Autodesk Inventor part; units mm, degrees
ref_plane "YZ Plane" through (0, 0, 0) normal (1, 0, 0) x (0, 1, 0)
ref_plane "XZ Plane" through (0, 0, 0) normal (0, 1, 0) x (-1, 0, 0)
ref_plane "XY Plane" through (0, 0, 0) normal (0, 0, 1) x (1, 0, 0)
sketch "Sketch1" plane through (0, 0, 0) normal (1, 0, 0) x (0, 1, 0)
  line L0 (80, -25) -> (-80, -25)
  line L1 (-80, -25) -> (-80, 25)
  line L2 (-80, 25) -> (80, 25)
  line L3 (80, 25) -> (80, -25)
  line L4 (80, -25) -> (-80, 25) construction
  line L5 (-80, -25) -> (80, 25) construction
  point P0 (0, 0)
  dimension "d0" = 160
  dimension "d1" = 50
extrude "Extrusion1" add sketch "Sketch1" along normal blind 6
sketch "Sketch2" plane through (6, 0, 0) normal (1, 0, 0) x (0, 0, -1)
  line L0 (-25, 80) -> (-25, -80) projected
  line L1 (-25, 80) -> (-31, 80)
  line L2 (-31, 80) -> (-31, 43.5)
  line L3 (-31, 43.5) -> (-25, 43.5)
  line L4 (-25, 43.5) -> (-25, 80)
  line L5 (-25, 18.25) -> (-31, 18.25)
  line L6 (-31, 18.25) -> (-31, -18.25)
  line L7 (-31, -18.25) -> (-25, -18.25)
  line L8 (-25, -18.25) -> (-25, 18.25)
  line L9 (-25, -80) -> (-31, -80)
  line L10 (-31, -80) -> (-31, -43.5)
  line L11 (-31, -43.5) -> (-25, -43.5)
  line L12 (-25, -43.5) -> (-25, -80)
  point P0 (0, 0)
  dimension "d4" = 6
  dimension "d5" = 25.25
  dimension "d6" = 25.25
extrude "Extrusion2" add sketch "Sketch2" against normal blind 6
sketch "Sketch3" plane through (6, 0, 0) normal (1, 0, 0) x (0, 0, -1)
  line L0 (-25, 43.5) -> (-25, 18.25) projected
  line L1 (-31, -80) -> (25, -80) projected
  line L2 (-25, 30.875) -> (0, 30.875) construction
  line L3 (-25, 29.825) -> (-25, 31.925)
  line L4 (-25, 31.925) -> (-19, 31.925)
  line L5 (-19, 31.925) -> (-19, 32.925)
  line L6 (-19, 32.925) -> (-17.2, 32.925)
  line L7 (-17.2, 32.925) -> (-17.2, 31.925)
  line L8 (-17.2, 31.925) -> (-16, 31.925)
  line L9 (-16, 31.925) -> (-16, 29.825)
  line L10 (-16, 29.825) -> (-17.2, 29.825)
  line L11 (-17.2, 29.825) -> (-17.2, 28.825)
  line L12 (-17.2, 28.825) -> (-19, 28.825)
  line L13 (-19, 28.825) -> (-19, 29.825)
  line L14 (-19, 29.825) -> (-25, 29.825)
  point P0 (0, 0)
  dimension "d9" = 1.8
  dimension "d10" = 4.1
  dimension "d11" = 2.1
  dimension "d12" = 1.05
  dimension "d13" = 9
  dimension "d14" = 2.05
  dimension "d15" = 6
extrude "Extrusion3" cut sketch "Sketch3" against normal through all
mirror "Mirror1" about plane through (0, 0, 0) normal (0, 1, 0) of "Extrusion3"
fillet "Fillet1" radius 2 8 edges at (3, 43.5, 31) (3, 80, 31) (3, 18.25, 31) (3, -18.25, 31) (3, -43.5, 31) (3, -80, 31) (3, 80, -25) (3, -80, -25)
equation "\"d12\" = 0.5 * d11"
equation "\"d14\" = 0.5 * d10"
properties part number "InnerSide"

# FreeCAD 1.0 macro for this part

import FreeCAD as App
import Part
import Sketcher
Q = App.Units.Quantity


def edges_at(feature, points):
    """Names of the edges that pass closest to the given points."""
    edges = feature.Shape.Edges
    near = lambda p: min(range(len(edges)), key=lambda i: edges[i].distToShape(Part.Vertex(*p))[0])
    return sorted({f"Edge{near(p) + 1}" for p in points})


def add_polygon(sketch, points):
    """Adds a closed chain of lines whose ends are joined by coincident constraints."""
    first, n = sketch.GeometryCount, len(points)
    for a, b in zip(points, points[1:] + points[:1]):
        sketch.addGeometry(Part.LineSegment(App.Vector(*a, 0), App.Vector(*b, 0)), False)
    for i in range(n):
        sketch.addConstraint(Sketcher.Constraint("Coincident", first + i, 2, first + (i + 1) % n, 1))

doc = App.newDocument("Part")
params = doc.addObject("Spreadsheet::Sheet", "Params")
for row, (alias, value) in enumerate([
    ("sketch1_width", "160 mm"),
    ("sketch1_height", "50 mm"),
    ("pad1_length", "6 mm"),
    ("sketch2_height", "6 mm"),
    ("sketch2_width", "36.5 mm"),
    ("pad2_length", "6 mm"),
    ("sketch3_height", "6 mm"),
    ("sketch3_width", "2.1 mm"),
    ("sketch3_height2", "1.8 mm"),
    ("sketch3_width2", "1 mm"),
    ("fillet_radius", "2 mm"),
], start=1):
    params.set(f"A{row}", alias)
    params.set(f"B{row}", "=" + value)
    params.setAlias(f"B{row}", alias)

body = doc.addObject("PartDesign::Body", "Body")

sketch1 = doc.addObject("Sketcher::SketchObject", "Sketch")
body.addObject(sketch1)
sketch1.AttachmentSupport = (doc.YZ_Plane, [""])
sketch1.MapMode = "FlatFace"
add_polygon(sketch1, [(-80, -25), (80, -25), (80, 25), (-80, 25)])
sketch1.addConstraint([
    Sketcher.Constraint("Horizontal", 0),
    Sketcher.Constraint("Vertical", 1),
    Sketcher.Constraint("Horizontal", 2),
    Sketcher.Constraint("Vertical", 3),
    Sketcher.Constraint("Symmetric", 0, 2, 2, 2, -1, 1),
    Sketcher.Constraint("DistanceX", 0, 1, 0, 2, Q("160 mm")),
    Sketcher.Constraint("DistanceY", 1, 1, 1, 2, Q("50 mm")),
])
sketch1.setExpression("Constraints[9]", "Params.sketch1_width")
sketch1.setExpression("Constraints[10]", "Params.sketch1_height")
pad1 = doc.addObject("PartDesign::Pad", "Pad")
body.addObject(pad1)
pad1.Profile = sketch1
pad1.setExpression("Length", "Params.pad1_length")

sketch2 = doc.addObject("Sketcher::SketchObject", "Sketch001")
body.addObject(sketch2)
sketch2.AttachmentSupport = (doc.YZ_Plane, [""])
sketch2.MapMode = "FlatFace"
sketch2.AttachmentOffset = App.Placement(App.Vector(0, 0, 6), App.Rotation())
add_polygon(sketch2, [(-80, 25), (-44, 25), (-44, 31), (-80, 31)])
add_polygon(sketch2, [(-18, 25), (18, 25), (18, 31), (-18, 31)])
add_polygon(sketch2, [(44, 25), (80, 25), (80, 31), (44, 31)])
sketch2.addConstraint([
    Sketcher.Constraint("Horizontal", 0),
    Sketcher.Constraint("Vertical", 1),
    Sketcher.Constraint("Horizontal", 2),
    Sketcher.Constraint("Vertical", 3),
    Sketcher.Constraint("Horizontal", 4),
    Sketcher.Constraint("Vertical", 5),
    Sketcher.Constraint("Horizontal", 6),
    Sketcher.Constraint("Vertical", 7),
    Sketcher.Constraint("Horizontal", 8),
    Sketcher.Constraint("Vertical", 9),
    Sketcher.Constraint("Horizontal", 10),
    Sketcher.Constraint("Vertical", 11),
    Sketcher.Constraint("Symmetric", 3, 2, 8, 2, -2),
    Sketcher.Constraint("Symmetric", 1, 2, 10, 2, -2),
    Sketcher.Constraint("Horizontal", 3, 2, 4, 2),
    Sketcher.Constraint("Horizontal", 2, 2, 5, 2),
    Sketcher.Constraint("Equal", 2, 4),
    Sketcher.Constraint("DistanceY", 1, 1, 1, 2, Q("6 mm")),
    Sketcher.Constraint("DistanceX", 1, 2, 6, 2, Q("25.25 mm")),
    Sketcher.Constraint("DistanceX", 5, 2, 10, 2, Q("25.25 mm")),
    Sketcher.Constraint("DistanceX", 0, 1, 0, 2, Q("36.5 mm")),
    Sketcher.Constraint("DistanceY", -1, 1, 0, 2, Q("25 mm")),
])
sketch2.setExpression("Constraints[29]", "Params.sketch2_height")
sketch2.setExpression("Constraints[32]", "Params.sketch2_width")
pad2 = doc.addObject("PartDesign::Pad", "Pad001")
body.addObject(pad2)
pad2.Profile = sketch2
pad2.setExpression("Length", "Params.pad2_length")
pad2.Reversed = True

sketch3 = doc.addObject("Sketcher::SketchObject", "Sketch002")
body.addObject(sketch3)
sketch3.AttachmentSupport = (doc.YZ_Plane, [""])
sketch3.MapMode = "FlatFace"
sketch3.AttachmentOffset = App.Placement(App.Vector(0, 0, 6), App.Rotation())
add_polygon(sketch3, [(31.9, 19), (31.9, 25), (29.8, 25), (29.8, 19), (28.8, 19), (28.8, 17.2), (29.8, 17.2), (29.8, 16), (31.9, 16), (31.9, 17.2), (32.9, 17.2), (32.9, 19)])
sketch3.addConstraint([
    Sketcher.Constraint("Vertical", 0),
    Sketcher.Constraint("Horizontal", 1),
    Sketcher.Constraint("Vertical", 2),
    Sketcher.Constraint("Horizontal", 3),
    Sketcher.Constraint("Vertical", 4),
    Sketcher.Constraint("Horizontal", 5),
    Sketcher.Constraint("Vertical", 6),
    Sketcher.Constraint("Horizontal", 7),
    Sketcher.Constraint("Vertical", 8),
    Sketcher.Constraint("Horizontal", 9),
    Sketcher.Constraint("Vertical", 10),
    Sketcher.Constraint("Horizontal", 11),
    Sketcher.Constraint("Horizontal", 5, 2, 8, 2),
    Sketcher.Constraint("Horizontal", 3, 2, 10, 2),
    Sketcher.Constraint("Vertical", 2, 2, 5, 2),
    Sketcher.Constraint("Vertical", 0, 2, 7, 2),
    Sketcher.Constraint("Equal", 5, 9),
    Sketcher.Constraint("DistanceY", 0, 1, 0, 2, Q("6 mm")),
    Sketcher.Constraint("DistanceX", 1, 2, 1, 1, Q("2.1 mm")),
    Sketcher.Constraint("DistanceY", 4, 2, 4, 1, Q("1.8 mm")),
    Sketcher.Constraint("DistanceY", 6, 2, 1, 2, Q("9 mm")),
    Sketcher.Constraint("DistanceX", 3, 2, 3, 1, Q("1 mm")),
    Sketcher.Constraint("DistanceY", -1, 1, 0, 2, Q("25 mm")),
    Sketcher.Constraint("DistanceX", -1, 1, 0, 2, Q("31.925 mm")),
])
sketch3.setExpression("Constraints[29]", "Params.sketch3_height")
sketch3.setExpression("Constraints[30]", "Params.sketch3_width")
sketch3.setExpression("Constraints[31]", "Params.sketch3_height2")
sketch3.setExpression("Constraints[33]", "Params.sketch3_width2")
pocket1 = doc.addObject("PartDesign::Pocket", "Pocket")
body.addObject(pocket1)
pocket1.Profile = sketch3
pocket1.Type = "ThroughAll"
doc.recompute()

mirrored = doc.addObject("PartDesign::Mirrored", "Mirrored")
body.addObject(mirrored)
mirrored.Originals = [pocket1]
mirrored.MirrorPlane = (doc.XZ_Plane, [""])
body.Tip = mirrored
doc.recompute()

fillet = doc.addObject("PartDesign::Fillet", "Fillet")
body.addObject(fillet)
fillet.Base = (mirrored, edges_at(mirrored, [
    (3, 43.5, 31),
    (3, 80, 31),
    (3, 18.25, 31),
    (3, -18.25, 31),
    (3, -43.5, 31),
    (3, -80, 31),
    (3, 80, -25),
    (3, -80, -25),
]))
fillet.setExpression("Radius", "Params.fillet_radius")

doc.recompute()
